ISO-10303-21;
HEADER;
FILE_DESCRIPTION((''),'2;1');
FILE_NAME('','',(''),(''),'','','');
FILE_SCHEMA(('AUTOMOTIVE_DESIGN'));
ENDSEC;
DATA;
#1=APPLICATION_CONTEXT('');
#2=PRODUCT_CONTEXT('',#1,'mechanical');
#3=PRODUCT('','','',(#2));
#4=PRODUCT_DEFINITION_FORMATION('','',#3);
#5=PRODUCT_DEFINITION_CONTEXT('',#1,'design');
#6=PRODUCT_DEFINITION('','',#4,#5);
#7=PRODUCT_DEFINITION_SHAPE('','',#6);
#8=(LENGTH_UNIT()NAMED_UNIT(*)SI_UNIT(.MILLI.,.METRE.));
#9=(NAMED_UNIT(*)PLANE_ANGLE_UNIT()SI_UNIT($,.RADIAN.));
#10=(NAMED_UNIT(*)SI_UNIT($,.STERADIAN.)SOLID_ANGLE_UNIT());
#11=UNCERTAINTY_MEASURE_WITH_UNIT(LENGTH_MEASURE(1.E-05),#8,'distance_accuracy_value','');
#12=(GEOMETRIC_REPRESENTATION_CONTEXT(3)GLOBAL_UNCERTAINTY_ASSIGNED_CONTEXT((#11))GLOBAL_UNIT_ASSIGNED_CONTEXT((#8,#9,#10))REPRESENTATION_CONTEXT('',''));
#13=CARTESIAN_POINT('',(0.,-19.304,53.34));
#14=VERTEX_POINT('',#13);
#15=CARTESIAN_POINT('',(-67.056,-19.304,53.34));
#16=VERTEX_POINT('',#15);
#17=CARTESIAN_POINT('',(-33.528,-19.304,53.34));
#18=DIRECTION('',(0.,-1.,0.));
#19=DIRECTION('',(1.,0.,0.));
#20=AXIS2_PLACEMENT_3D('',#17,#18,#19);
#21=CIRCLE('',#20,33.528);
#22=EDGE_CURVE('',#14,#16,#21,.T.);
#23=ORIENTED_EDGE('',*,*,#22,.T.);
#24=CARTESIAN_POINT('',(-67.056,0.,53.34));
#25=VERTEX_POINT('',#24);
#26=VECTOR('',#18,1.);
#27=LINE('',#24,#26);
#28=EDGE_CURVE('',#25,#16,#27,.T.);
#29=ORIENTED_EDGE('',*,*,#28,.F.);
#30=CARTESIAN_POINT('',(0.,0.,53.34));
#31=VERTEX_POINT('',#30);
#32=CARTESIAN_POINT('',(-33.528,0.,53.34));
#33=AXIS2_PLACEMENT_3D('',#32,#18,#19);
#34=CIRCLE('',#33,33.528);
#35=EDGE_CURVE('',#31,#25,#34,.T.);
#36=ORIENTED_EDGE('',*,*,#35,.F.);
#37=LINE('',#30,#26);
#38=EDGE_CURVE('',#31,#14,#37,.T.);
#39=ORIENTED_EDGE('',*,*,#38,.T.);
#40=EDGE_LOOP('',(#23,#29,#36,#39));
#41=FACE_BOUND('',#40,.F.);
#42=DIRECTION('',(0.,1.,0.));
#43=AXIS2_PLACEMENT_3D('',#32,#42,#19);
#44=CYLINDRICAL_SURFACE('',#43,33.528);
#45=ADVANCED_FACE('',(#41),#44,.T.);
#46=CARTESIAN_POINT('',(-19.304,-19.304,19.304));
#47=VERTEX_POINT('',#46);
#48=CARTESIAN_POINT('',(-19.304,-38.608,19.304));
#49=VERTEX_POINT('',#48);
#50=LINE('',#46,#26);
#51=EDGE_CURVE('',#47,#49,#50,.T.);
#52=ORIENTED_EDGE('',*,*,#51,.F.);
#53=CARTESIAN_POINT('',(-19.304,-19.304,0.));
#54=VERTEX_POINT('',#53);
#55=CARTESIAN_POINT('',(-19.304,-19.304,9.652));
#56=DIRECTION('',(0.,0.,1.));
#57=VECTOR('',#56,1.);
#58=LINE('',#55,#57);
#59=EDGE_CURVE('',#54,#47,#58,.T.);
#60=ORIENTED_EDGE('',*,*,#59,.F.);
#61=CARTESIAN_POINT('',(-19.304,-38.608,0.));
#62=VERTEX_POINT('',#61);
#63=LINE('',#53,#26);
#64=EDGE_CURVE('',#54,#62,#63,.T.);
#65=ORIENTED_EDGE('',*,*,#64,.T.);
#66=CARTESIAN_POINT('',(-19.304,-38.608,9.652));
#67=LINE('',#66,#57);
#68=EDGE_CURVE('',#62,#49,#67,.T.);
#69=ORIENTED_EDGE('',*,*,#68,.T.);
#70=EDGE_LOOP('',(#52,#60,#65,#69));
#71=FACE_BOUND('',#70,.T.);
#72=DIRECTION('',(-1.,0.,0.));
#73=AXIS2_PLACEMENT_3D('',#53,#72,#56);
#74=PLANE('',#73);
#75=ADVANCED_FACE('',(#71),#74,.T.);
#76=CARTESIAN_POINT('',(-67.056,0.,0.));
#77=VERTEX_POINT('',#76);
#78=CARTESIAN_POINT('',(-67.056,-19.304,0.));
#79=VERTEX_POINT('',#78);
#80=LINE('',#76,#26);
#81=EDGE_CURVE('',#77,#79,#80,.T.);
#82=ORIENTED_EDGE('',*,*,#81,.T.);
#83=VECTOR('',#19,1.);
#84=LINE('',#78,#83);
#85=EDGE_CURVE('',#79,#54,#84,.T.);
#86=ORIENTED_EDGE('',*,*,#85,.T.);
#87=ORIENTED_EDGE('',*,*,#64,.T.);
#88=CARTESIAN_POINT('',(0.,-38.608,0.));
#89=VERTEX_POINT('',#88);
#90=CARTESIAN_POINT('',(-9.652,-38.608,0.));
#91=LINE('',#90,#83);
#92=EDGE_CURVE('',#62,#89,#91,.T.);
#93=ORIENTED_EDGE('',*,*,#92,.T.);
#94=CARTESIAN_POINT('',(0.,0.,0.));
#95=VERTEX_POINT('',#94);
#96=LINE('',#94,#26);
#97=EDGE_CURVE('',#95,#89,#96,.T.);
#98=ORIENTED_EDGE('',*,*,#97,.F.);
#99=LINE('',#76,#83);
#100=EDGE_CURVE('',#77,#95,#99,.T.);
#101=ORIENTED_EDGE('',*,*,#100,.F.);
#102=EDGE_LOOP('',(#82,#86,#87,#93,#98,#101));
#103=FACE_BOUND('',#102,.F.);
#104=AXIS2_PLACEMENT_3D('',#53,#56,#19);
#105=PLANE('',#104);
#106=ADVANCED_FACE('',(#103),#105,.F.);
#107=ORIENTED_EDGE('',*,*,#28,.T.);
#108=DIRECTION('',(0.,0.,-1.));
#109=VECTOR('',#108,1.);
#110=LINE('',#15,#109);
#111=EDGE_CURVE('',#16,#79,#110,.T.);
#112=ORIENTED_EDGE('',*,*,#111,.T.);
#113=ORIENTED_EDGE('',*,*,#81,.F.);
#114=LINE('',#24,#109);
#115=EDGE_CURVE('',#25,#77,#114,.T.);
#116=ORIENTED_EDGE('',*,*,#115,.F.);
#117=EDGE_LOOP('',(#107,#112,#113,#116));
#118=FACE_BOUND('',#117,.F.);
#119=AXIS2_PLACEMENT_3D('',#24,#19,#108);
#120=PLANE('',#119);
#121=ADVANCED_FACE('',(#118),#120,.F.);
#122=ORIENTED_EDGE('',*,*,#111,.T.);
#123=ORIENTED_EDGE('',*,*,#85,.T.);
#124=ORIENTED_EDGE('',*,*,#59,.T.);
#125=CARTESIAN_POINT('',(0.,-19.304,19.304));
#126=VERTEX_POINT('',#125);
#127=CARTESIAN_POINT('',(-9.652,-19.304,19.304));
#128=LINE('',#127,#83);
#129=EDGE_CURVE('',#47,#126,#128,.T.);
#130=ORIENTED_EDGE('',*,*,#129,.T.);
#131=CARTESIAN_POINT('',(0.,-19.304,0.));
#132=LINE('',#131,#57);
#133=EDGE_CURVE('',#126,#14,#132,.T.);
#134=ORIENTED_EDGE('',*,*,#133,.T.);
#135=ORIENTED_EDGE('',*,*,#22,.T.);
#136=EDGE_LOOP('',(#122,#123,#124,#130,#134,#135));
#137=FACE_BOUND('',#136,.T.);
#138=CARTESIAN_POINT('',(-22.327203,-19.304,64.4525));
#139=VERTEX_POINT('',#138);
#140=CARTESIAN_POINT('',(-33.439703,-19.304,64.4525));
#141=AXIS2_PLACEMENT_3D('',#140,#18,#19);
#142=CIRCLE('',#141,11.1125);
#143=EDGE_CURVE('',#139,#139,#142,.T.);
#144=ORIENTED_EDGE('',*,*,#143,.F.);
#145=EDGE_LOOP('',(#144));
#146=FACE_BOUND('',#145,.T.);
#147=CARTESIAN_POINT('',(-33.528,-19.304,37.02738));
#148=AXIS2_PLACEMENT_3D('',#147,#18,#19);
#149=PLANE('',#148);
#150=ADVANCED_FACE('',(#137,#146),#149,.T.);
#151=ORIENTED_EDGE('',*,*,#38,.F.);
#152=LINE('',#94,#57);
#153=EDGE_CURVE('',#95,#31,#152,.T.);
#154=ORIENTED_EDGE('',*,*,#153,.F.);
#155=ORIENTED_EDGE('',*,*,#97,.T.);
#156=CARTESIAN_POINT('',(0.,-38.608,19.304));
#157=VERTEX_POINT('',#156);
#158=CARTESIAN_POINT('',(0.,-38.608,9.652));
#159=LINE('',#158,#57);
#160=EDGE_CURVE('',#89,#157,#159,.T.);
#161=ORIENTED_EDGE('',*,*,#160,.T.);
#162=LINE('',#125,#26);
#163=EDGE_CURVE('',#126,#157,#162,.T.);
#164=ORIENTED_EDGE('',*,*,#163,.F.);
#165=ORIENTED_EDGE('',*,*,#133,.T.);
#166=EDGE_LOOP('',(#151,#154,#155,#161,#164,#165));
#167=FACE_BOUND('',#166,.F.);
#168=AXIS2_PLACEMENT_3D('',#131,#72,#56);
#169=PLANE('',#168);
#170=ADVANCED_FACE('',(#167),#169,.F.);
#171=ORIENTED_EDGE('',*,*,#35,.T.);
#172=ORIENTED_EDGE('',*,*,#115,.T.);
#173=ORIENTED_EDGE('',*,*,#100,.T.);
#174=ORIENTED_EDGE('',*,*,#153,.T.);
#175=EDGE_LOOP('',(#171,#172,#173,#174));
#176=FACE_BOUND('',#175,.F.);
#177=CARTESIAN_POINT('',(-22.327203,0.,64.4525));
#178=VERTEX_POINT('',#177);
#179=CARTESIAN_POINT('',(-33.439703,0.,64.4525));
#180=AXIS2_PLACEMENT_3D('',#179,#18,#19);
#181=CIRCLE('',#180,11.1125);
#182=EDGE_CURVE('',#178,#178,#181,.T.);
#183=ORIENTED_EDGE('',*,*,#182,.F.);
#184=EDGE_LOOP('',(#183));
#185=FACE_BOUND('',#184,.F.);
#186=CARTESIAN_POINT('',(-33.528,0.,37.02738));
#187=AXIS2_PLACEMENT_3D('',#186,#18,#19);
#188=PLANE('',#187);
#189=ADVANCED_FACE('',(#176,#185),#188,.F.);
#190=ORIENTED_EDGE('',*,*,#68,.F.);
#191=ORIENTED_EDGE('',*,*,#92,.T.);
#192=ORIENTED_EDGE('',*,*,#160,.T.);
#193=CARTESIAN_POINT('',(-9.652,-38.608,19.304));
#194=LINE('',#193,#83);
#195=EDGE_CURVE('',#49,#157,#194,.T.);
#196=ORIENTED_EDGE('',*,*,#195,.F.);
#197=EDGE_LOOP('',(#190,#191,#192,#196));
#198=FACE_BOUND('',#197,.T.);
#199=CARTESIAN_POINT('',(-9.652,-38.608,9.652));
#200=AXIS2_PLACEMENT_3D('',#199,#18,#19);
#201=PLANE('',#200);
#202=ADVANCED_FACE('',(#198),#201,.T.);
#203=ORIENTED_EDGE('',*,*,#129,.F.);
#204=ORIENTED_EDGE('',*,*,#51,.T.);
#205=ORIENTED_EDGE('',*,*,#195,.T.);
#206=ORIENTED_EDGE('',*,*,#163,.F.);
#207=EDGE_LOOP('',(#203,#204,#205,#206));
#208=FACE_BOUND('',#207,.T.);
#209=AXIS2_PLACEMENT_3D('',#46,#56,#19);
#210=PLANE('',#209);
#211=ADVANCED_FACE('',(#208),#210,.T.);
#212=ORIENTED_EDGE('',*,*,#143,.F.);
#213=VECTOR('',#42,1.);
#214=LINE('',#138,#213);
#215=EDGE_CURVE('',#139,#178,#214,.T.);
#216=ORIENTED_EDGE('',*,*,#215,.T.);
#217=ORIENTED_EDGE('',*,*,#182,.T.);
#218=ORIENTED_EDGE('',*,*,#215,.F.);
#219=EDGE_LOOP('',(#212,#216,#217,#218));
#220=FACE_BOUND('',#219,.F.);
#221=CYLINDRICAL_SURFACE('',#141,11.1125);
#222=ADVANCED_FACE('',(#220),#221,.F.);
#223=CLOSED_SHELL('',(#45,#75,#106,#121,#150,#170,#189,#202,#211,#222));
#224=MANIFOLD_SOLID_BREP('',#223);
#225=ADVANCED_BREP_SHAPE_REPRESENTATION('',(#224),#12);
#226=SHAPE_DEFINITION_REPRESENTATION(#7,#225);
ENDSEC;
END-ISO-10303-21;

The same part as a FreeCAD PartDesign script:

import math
import FreeCAD as App
import Part
import Sketcher
Q = App.Units.Quantity


def add_polygon(sketch, points):
    """Adds a closed chain of lines whose ends are joined by coincident constraints."""
    first, n = sketch.GeometryCount, len(points)
    for a, b in zip(points, points[1:] + points[:1]):
        sketch.addGeometry(Part.LineSegment(App.Vector(*a, 0), App.Vector(*b, 0)), False)
    for i in range(n):
        sketch.addConstraint(Sketcher.Constraint("Coincident", first + i, 2, first + (i + 1) % n, 1))

doc = App.newDocument("Part")
body = doc.addObject("PartDesign::Body", "Body")

# Sketch on XZ plane
sketch1 = body.newObject("Sketcher::SketchObject", "Sketch")
sketch1.AttachmentSupport = (doc.getObject("XZ_Plane"), [""])
sketch1.MapMode = "FlatFace"
sketch1.addGeometry(Part.LineSegment(App.Vector(-67, 0, 0), App.Vector(0, 0, 0)), False)
sketch1.addGeometry(Part.LineSegment(App.Vector(0, 0, 0), App.Vector(0, 53, 0)), False)
sketch1.addGeometry(Part.ArcOfCircle(Part.Circle(App.Vector(-34, 53, 0), App.Vector(0, 0, 1), 34), math.radians(0), math.radians(180)), False)
sketch1.addGeometry(Part.LineSegment(App.Vector(-67, 53, 0), App.Vector(-67, 0, 0)), False)
sketch1.addConstraint(Sketcher.Constraint("Coincident", 0, 2, 1, 1))
sketch1.addConstraint(Sketcher.Constraint("Tangent", 1, 2, 2, 1))
sketch1.addConstraint(Sketcher.Constraint("Tangent", 2, 2, 3, 1))
sketch1.addConstraint(Sketcher.Constraint("Coincident", 3, 2, 0, 1))
sketch1.addConstraint(Sketcher.Constraint("Horizontal", 0))
sketch1.addConstraint(Sketcher.Constraint("Vertical", 1))
sketch1.addConstraint(Sketcher.Constraint("Vertical", 3))
sketch1.addConstraint(Sketcher.Constraint("Coincident", 0, 2, -1, 1))
sketch1.addConstraint(Sketcher.Constraint("Radius", 2, Q("1.32 in")))
sketch1.addConstraint(Sketcher.Constraint("DistanceY", 1, 1, 1, 2, Q("2.1 in")))
pad1 = body.newObject("PartDesign::Pad", "Pad")
pad1.Profile = sketch1
pad1.Length = Q("0.76 in")

# Sketch on XZ plane
sketch2 = body.newObject("Sketcher::SketchObject", "Sketch001")
sketch2.AttachmentSupport = (doc.getObject("XZ_Plane"), [""])
sketch2.MapMode = "FlatFace"
sketch2.addGeometry(Part.LineSegment(App.Vector(-67, 0, 0), App.Vector(0, 0, 0)), False)
sketch2.addGeometry(Part.LineSegment(App.Vector(0, 0, 0), App.Vector(0, 53, 0)), False)
sketch2.addGeometry(Part.ArcOfCircle(Part.Circle(App.Vector(-34, 53, 0), App.Vector(0, 0, 1), 34), math.radians(0), math.radians(180)), False)
sketch2.addGeometry(Part.LineSegment(App.Vector(-67, 53, 0), App.Vector(-67, 0, 0)), False)
sketch2.addConstraint(Sketcher.Constraint("Coincident", 0, 2, 1, 1))
sketch2.addConstraint(Sketcher.Constraint("Tangent", 1, 2, 2, 1))
sketch2.addConstraint(Sketcher.Constraint("Tangent", 2, 2, 3, 1))
sketch2.addConstraint(Sketcher.Constraint("Coincident", 3, 2, 0, 1))
sketch2.addConstraint(Sketcher.Constraint("Horizontal", 0))
sketch2.addConstraint(Sketcher.Constraint("Vertical", 1))
sketch2.addConstraint(Sketcher.Constraint("Vertical", 3))
sketch2.addConstraint(Sketcher.Constraint("Coincident", 0, 2, -1, 1))
sketch2.addConstraint(Sketcher.Constraint("Radius", 2, Q("1.32 in")))
sketch2.addConstraint(Sketcher.Constraint("DistanceY", 1, 1, 1, 2, Q("2.1 in")))
pad2 = body.newObject("PartDesign::Pad", "Pad001")
pad2.Profile = sketch2
pad2.Length = Q("0.76 in")

# Sketch on XZ plane
sketch3 = body.newObject("Sketcher::SketchObject", "Sketch002")
sketch3.AttachmentSupport = (doc.getObject("XZ_Plane"), [""])
sketch3.MapMode = "FlatFace"
sketch3.AttachmentOffset = App.Placement(App.Vector(0, 0, 0.76 * 25.4), App.Rotation())
sketch3.addGeometry(Part.Circle(App.Vector(-33, 64, 0), App.Vector(0, 0, 1), 11), False)
sketch3.addConstraint(Sketcher.Constraint("Diameter", 0, Q("0.875 in")))
sketch3.addConstraint(Sketcher.Constraint("DistanceY", -1, 1, 0, 3, Q("2.5375 in")))
sketch3.addConstraint(Sketcher.Constraint("DistanceX", 0, 3, -1, 1, 33.439703))
pocket1 = body.newObject("PartDesign::Pocket", "Pocket")
pocket1.Profile = sketch3
pocket1.Length = Q("0.76 in")

# Sketch on XZ plane
sketch4 = body.newObject("Sketcher::SketchObject", "Sketch003")
sketch4.AttachmentSupport = (doc.getObject("XZ_Plane"), [""])
sketch4.MapMode = "FlatFace"
sketch4.AttachmentOffset = App.Placement(App.Vector(0, 0, 0.76 * 25.4), App.Rotation())
add_polygon(sketch4, [(-19, 19), (-19, 0), (0, 0), (0, 19)])  # lines 0-3
sketch4.addConstraint(Sketcher.Constraint("Vertical", 0))
sketch4.addConstraint(Sketcher.Constraint("Horizontal", 1))
sketch4.addConstraint(Sketcher.Constraint("Vertical", 2))
sketch4.addConstraint(Sketcher.Constraint("Horizontal", 3))
sketch4.addConstraint(Sketcher.Constraint("Coincident", 1, 2, -1, 1))
sketch4.addConstraint(Sketcher.Constraint("Equal", 3, 0))
sketch4.addConstraint(Sketcher.Constraint("DistanceX", 1, 1, 1, 2, Q("0.76 in")))
pad3 = body.newObject("PartDesign::Pad", "Pad002")
pad3.Profile = sketch4
pad3.Length = Q("0.76 in")

doc.recompute()
